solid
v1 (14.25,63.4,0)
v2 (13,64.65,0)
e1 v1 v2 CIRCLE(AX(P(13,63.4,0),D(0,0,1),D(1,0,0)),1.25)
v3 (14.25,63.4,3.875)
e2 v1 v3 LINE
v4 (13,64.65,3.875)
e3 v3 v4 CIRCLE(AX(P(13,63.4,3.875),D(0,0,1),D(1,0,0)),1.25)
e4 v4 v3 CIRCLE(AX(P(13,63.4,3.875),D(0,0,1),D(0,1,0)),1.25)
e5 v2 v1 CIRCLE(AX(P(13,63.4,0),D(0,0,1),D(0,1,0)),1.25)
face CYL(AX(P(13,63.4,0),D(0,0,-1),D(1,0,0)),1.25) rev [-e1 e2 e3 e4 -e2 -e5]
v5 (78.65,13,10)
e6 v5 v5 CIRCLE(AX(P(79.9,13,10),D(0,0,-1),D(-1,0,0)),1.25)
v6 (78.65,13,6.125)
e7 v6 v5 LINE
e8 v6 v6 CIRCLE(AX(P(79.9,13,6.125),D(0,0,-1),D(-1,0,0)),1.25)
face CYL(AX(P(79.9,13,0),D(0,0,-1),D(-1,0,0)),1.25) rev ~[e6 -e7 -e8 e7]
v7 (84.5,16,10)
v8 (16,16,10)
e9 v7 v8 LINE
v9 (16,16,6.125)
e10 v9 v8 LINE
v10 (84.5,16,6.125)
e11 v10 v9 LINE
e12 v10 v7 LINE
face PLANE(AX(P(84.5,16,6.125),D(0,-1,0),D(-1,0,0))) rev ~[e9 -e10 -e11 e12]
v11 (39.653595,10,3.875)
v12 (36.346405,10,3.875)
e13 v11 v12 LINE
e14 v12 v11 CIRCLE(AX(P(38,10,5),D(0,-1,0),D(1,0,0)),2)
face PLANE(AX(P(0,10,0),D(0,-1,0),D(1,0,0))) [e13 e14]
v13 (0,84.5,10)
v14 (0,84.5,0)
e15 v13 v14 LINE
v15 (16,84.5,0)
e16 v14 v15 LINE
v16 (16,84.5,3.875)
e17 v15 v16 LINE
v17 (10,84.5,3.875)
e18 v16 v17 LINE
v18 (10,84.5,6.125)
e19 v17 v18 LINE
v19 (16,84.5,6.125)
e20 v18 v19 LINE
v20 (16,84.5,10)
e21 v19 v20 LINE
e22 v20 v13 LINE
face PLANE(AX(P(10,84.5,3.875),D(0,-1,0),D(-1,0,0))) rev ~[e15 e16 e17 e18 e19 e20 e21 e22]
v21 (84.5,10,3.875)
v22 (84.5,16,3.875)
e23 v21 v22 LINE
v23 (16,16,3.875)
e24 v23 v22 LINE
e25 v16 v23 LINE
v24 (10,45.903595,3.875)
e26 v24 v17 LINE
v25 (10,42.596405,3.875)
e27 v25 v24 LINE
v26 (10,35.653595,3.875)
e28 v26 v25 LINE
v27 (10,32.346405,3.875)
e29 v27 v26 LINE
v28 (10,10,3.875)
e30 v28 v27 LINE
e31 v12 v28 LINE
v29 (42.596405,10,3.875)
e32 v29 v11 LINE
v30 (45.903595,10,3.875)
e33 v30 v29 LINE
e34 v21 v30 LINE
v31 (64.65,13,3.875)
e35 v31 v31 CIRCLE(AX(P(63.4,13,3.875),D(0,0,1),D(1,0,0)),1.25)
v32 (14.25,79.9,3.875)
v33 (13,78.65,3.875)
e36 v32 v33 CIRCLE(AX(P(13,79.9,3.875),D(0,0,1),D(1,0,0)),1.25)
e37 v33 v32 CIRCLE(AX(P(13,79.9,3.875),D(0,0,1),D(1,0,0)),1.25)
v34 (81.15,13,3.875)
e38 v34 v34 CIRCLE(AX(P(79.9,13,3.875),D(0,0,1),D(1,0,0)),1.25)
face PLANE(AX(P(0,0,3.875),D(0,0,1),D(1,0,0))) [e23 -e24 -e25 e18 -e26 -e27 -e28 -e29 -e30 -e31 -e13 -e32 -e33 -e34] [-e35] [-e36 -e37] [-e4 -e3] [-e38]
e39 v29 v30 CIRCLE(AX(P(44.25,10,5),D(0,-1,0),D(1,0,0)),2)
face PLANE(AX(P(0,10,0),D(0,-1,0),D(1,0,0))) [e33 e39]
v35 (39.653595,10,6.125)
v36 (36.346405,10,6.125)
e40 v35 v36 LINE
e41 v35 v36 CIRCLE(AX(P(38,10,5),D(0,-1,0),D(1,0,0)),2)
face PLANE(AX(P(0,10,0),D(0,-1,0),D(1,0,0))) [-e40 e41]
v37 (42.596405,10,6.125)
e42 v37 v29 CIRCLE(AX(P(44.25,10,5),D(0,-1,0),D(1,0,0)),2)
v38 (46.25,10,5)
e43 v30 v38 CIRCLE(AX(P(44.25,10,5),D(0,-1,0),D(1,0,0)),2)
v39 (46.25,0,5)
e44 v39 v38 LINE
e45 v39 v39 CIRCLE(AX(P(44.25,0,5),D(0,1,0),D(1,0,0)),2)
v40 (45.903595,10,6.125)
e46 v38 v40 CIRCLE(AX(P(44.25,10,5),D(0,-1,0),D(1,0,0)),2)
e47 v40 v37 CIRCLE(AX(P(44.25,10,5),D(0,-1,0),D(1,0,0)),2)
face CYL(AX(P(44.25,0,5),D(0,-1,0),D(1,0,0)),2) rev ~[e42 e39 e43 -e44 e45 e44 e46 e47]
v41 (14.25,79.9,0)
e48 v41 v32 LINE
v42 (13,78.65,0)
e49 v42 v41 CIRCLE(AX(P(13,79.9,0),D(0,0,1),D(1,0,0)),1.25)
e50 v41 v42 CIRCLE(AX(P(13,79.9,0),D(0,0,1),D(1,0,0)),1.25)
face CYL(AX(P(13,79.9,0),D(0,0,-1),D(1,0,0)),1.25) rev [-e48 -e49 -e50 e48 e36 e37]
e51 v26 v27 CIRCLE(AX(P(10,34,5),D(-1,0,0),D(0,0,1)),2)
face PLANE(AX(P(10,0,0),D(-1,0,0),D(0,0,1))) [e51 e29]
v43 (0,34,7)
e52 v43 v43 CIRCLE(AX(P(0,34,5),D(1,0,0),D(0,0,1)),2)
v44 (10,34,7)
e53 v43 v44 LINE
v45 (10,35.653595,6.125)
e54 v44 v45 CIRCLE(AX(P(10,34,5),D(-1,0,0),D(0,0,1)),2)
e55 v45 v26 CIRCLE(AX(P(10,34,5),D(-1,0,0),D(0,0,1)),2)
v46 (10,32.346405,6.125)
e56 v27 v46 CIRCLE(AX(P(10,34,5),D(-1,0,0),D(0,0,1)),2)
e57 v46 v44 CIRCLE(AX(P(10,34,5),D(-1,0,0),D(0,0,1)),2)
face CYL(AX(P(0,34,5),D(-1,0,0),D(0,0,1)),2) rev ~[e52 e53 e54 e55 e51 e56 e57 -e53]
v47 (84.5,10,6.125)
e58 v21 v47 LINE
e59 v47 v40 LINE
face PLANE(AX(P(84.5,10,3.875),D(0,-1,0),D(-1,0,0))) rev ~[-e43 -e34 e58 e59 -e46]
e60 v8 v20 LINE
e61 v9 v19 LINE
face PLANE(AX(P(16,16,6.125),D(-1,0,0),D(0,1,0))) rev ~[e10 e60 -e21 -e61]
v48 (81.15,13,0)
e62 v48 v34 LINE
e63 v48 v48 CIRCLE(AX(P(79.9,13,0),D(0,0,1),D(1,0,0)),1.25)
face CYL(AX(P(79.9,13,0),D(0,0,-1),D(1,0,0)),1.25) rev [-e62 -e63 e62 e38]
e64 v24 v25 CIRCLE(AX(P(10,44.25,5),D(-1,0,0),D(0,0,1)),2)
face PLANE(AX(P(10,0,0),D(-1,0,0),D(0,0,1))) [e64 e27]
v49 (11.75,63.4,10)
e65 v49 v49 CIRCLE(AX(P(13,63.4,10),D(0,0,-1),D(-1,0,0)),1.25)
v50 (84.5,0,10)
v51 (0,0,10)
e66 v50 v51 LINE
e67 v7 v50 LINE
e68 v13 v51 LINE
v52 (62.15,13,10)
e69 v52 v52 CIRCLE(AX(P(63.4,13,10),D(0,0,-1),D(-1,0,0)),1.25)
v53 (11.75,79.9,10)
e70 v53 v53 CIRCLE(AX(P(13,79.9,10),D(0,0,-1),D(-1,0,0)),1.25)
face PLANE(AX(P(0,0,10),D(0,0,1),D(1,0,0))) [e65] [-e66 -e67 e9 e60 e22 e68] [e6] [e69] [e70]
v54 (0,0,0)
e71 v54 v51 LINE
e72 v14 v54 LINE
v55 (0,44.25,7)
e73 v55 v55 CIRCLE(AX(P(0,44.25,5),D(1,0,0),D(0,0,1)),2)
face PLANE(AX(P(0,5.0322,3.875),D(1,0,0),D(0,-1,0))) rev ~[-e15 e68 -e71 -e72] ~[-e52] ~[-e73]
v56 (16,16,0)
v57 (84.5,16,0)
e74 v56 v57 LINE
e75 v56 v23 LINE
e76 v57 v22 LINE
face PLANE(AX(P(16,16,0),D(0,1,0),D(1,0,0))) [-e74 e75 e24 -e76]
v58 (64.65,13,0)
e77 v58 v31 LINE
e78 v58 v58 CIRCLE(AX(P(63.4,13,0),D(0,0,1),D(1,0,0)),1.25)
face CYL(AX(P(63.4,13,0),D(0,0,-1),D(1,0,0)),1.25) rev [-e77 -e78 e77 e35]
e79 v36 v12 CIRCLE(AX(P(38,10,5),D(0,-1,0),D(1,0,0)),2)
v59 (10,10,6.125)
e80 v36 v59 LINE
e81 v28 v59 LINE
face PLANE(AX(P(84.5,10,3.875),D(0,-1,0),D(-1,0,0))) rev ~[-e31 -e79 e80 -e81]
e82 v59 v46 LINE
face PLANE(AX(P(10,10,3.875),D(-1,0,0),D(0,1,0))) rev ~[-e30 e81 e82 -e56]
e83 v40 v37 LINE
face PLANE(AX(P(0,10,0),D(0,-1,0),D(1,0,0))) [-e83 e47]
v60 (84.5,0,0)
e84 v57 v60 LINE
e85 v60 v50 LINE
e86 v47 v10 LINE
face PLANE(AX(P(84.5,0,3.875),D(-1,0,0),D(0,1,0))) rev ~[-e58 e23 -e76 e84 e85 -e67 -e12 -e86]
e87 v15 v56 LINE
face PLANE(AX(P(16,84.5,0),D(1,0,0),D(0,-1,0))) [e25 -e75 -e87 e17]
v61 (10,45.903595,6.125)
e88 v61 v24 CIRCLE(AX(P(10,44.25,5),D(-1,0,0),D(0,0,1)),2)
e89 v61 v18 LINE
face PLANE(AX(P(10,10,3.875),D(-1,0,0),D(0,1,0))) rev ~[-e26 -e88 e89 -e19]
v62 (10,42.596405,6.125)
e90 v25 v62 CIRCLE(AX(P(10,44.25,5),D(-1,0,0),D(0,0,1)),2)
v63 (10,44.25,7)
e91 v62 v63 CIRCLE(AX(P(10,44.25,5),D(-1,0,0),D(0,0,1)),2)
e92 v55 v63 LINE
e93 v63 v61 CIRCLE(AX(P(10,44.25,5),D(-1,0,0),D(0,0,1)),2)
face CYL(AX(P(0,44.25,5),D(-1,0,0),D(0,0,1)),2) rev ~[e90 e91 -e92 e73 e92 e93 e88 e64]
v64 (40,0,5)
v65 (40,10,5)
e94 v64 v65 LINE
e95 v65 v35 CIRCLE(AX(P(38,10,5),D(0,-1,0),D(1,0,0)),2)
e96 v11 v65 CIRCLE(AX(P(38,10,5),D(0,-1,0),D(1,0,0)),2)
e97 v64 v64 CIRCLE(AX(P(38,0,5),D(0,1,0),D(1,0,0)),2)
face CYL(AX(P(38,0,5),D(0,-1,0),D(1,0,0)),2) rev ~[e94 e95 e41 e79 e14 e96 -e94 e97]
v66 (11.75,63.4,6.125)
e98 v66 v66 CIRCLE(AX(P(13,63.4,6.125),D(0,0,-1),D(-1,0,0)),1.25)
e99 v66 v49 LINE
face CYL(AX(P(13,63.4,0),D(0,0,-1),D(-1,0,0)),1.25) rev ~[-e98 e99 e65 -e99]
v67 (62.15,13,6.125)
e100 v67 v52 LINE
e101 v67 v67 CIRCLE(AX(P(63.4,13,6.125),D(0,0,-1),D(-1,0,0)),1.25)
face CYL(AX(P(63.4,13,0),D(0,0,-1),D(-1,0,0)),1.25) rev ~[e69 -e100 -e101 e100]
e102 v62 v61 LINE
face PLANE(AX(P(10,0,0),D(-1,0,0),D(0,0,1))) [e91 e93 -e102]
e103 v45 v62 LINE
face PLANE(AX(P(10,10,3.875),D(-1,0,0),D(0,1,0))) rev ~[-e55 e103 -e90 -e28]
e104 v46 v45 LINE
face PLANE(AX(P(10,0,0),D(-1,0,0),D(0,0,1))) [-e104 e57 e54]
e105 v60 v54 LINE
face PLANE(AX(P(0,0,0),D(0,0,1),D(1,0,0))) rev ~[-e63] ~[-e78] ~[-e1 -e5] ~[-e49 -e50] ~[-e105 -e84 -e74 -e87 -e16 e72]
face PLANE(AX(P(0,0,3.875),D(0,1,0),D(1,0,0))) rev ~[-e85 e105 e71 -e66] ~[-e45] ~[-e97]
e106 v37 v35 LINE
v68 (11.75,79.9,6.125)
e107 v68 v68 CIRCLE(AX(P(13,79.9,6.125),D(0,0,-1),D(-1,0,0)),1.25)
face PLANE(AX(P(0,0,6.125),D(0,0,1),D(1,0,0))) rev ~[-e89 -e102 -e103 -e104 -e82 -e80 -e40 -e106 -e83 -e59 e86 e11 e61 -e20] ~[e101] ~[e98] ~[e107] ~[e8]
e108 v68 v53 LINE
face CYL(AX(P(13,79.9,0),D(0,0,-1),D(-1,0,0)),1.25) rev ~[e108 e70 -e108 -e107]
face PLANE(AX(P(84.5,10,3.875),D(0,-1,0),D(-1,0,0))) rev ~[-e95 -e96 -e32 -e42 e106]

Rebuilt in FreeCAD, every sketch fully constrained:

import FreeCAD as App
import Part
import Sketcher
Q = App.Units.Quantity


def add_polygon(sketch, points):
    """Adds a closed chain of lines whose ends are joined by coincident constraints."""
    first, n = sketch.GeometryCount, len(points)
    for a, b in zip(points, points[1:] + points[:1]):
        sketch.addGeometry(Part.LineSegment(App.Vector(*a, 0), App.Vector(*b, 0)), False)
    for i in range(n):
        sketch.addConstraint(Sketcher.Constraint("Coincident", first + i, 2, first + (i + 1) % n, 1))

doc = App.newDocument("Part")
body = doc.addObject("PartDesign::Body", "Body")

# Sketch on XY plane
sketch1 = body.newObject("Sketcher::SketchObject", "Sketch")
sketch1.AttachmentSupport = (doc.getObject("XY_Plane"), [""])
sketch1.MapMode = "FlatFace"
add_polygon(sketch1, [(0, 0), (84.5, 0), (84.5, 16), (16, 16), (16, 84.5), (0, 84.5)])  # lines 0-5
sketch1.addGeometry(Part.Circle(App.Vector(13, 79.9, 0), App.Vector(0, 0, 1), 1.25), False)  # 6
sketch1.addGeometry(Part.Circle(App.Vector(63.4, 13, 0), App.Vector(0, 0, 1), 1.25), False)  # 7
sketch1.addGeometry(Part.Circle(App.Vector(79.9, 13, 0), App.Vector(0, 0, 1), 1.25), False)  # 8
sketch1.addGeometry(Part.Circle(App.Vector(13, 63.4, 0), App.Vector(0, 0, 1), 1.25), False)  # 9
sketch1.addConstraint([
    Sketcher.Constraint("Horizontal", 0),
    Sketcher.Constraint("Vertical", 1),
    Sketcher.Constraint("Horizontal", 2),
    Sketcher.Constraint("Vertical", 3),
    Sketcher.Constraint("Horizontal", 4),
    Sketcher.Constraint("Vertical", 5),
    Sketcher.Constraint("Coincident", 5, 2, -1, 1),
    Sketcher.Constraint("Equal", 6, 7),
    Sketcher.Constraint("Equal", 7, 8),
    Sketcher.Constraint("Equal", 8, 9),
    Sketcher.Constraint("Horizontal", 7, 3, 8, 3),
    Sketcher.Constraint("Vertical", 6, 3, 9, 3),
    Sketcher.Constraint("Equal", 4, 1),
    Sketcher.Constraint("Equal", 2, 3),
    Sketcher.Constraint("Diameter", 6, Q("2.5 mm")),
    Sketcher.Constraint("DistanceX", 0, 1, 0, 2, Q("84.5 mm")),
    Sketcher.Constraint("DistanceX", 2, 2, 2, 1, Q("68.5 mm")),
    Sketcher.Constraint("DistanceX", -1, 1, 6, 3, Q("13 mm")),
    Sketcher.Constraint("DistanceY", -1, 1, 7, 3, Q("13 mm")),
    Sketcher.Constraint("DistanceY", -1, 1, 6, 3, Q("79.9 mm")),
    Sketcher.Constraint("DistanceX", -1, 1, 7, 3, Q("63.4 mm")),
    Sketcher.Constraint("DistanceX", -1, 1, 8, 3, Q("79.9 mm")),
    Sketcher.Constraint("DistanceY", -1, 1, 9, 3, Q("63.4 mm")),
])
pad1 = body.newObject("PartDesign::Pad", "Pad")
pad1.Profile = sketch1
pad1.Length = 3.875

# Sketch on XY plane
sketch2 = body.newObject("Sketcher::SketchObject", "Sketch001")
sketch2.AttachmentSupport = (doc.getObject("XY_Plane"), [""])
sketch2.MapMode = "FlatFace"
sketch2.AttachmentOffset = App.Placement(App.Vector(0, 0, 3.875), App.Rotation())
add_polygon(sketch2, [(0, 84.5), (0, 0), (84.5, 0), (84.5, 10), (10, 10), (10, 84.5)])  # lines 0-5
sketch2.addConstraint([
    Sketcher.Constraint("Vertical", 0),
    Sketcher.Constraint("Horizontal", 1),
    Sketcher.Constraint("Vertical", 2),
    Sketcher.Constraint("Horizontal", 3),
    Sketcher.Constraint("Vertical", 4),
    Sketcher.Constraint("Horizontal", 5),
    Sketcher.Constraint("Coincident", 0, 2, -1, 1),
    Sketcher.Constraint("Equal", 1, 0),
    Sketcher.Constraint("Equal", 5, 2),
    Sketcher.Constraint("DistanceX", 5, 2, 5, 1, Q("10 mm")),
    Sketcher.Constraint("DistanceX", 1, 1, 1, 2, Q("84.5 mm")),
])
pad2 = body.newObject("PartDesign::Pad", "Pad001")
pad2.Profile = sketch2
pad2.Length = 2.25

# Sketch on XY plane
sketch3 = body.newObject("Sketcher::SketchObject", "Sketch002")
sketch3.AttachmentSupport = (doc.getObject("XY_Plane"), [""])
sketch3.MapMode = "FlatFace"
sketch3.AttachmentOffset = App.Placement(App.Vector(0, 0, 6.125), App.Rotation())
add_polygon(sketch3, [(84.5, 0), (84.5, 16), (16, 16), (16, 84.5), (0, 84.5), (0, 0)])  # lines 0-5
sketch3.addConstraint([
    Sketcher.Constraint("Vertical", 0),
    Sketcher.Constraint("Horizontal", 1),
    Sketcher.Constraint("Vertical", 2),
    Sketcher.Constraint("Horizontal", 3),
    Sketcher.Constraint("Vertical", 4),
    Sketcher.Constraint("Horizontal", 5),
    Sketcher.Constraint("Coincident", 4, 2, -1, 1),
    Sketcher.Constraint("Equal", 3, 0),
    Sketcher.Constraint("Equal", 1, 2),
    Sketcher.Constraint("DistanceX", 3, 2, 3, 1, Q("16 mm")),
    Sketcher.Constraint("DistanceX", 1, 2, 1, 1, Q("68.5 mm")),
])
pad3 = body.newObject("PartDesign::Pad", "Pad002")
pad3.Profile = sketch3
pad3.Length = 3.875

# Sketch on YZ plane
sketch4 = body.newObject("Sketcher::SketchObject", "Sketch003")
sketch4.AttachmentSupport = (doc.getObject("YZ_Plane"), [""])
sketch4.MapMode = "FlatFace"
sketch4.addGeometry([
    Part.Circle(App.Vector(44.25, 5, 0), App.Vector(0, 0, 1), 2),
    Part.Circle(App.Vector(34, 5, 0), App.Vector(0, 0, 1), 2),
], False)
sketch4.addConstraint([
    Sketcher.Constraint("Equal", 0, 1),
    Sketcher.Constraint("Horizontal", 0, 3, 1, 3),
    Sketcher.Constraint("Diameter", 0, Q("4 mm")),
    Sketcher.Constraint("DistanceY", -1, 1, 0, 3, Q("5 mm")),
    Sketcher.Constraint("DistanceX", -1, 1, 1, 3, Q("34 mm")),
    Sketcher.Constraint("DistanceX", -1, 1, 0, 3, Q("44.25 mm")),
])
pocket1 = body.newObject("PartDesign::Pocket", "Pocket")
pocket1.Profile = sketch4
pocket1.Length = 10
pocket1.Reversed = True

# Sketch on XZ plane
sketch5 = body.newObject("Sketcher::SketchObject", "Sketch004")
sketch5.AttachmentSupport = (doc.getObject("XZ_Plane"), [""])
sketch5.MapMode = "FlatFace"
sketch5.addGeometry([
    Part.Circle(App.Vector(38, 5, 0), App.Vector(0, 0, 1), 2),
    Part.Circle(App.Vector(44.25, 5, 0), App.Vector(0, 0, 1), 2),
], False)
sketch5.addConstraint([
    Sketcher.Constraint("Equal", 0, 1),
    Sketcher.Constraint("Horizontal", 0, 3, 1, 3),
    Sketcher.Constraint("Diameter", 0, Q("4 mm")),
    Sketcher.Constraint("DistanceY", -1, 1, 0, 3, Q("5 mm")),
    Sketcher.Constraint("DistanceX", -1, 1, 0, 3, Q("38 mm")),
    Sketcher.Constraint("DistanceX", -1, 1, 1, 3, Q("44.25 mm")),
])
pocket2 = body.newObject("PartDesign::Pocket", "Pocket001")
pocket2.Profile = sketch5
pocket2.Length = 10

# Sketch on XY plane
sketch6 = body.newObject("Sketcher::SketchObject", "Sketch005")
sketch6.AttachmentSupport = (doc.getObject("XY_Plane"), [""])
sketch6.MapMode = "FlatFace"
sketch6.addGeometry([
    Part.Circle(App.Vector(13, 63.4, 0), App.Vector(0, 0, 1), 1.25),
    Part.Circle(App.Vector(13, 79.9, 0), App.Vector(0, 0, 1), 1.25),
    Part.Circle(App.Vector(63.4, 13, 0), App.Vector(0, 0, 1), 1.25),
    Part.Circle(App.Vector(79.9, 13, 0), App.Vector(0, 0, 1), 1.25),
], False)
sketch6.addConstraint([
    Sketcher.Constraint("Equal", 0, 1),
    Sketcher.Constraint("Equal", 1, 2),
    Sketcher.Constraint("Equal", 2, 3),
    Sketcher.Constraint("Horizontal", 2, 3, 3, 3),
    Sketcher.Constraint("Vertical", 0, 3, 1, 3),
    Sketcher.Constraint("Diameter", 0, Q("2.5 mm")),
    Sketcher.Constraint("DistanceX", -1, 1, 0, 3, Q("13 mm")),
    Sketcher.Constraint("DistanceY", -1, 1, 2, 3, Q("13 mm")),
    Sketcher.Constraint("DistanceY", -1, 1, 0, 3, Q("63.4 mm")),
    Sketcher.Constraint("DistanceY", -1, 1, 1, 3, Q("79.9 mm")),
    Sketcher.Constraint("DistanceX", -1, 1, 2, 3, Q("63.4 mm")),
    Sketcher.Constraint("DistanceX", -1, 1, 3, 3, Q("79.9 mm")),
])
pocket3 = body.newObject("PartDesign::Pocket", "Pocket002")
pocket3.Profile = sketch6
pocket3.Type = "ThroughAll"
pocket3.Reversed = True

doc.recompute()
